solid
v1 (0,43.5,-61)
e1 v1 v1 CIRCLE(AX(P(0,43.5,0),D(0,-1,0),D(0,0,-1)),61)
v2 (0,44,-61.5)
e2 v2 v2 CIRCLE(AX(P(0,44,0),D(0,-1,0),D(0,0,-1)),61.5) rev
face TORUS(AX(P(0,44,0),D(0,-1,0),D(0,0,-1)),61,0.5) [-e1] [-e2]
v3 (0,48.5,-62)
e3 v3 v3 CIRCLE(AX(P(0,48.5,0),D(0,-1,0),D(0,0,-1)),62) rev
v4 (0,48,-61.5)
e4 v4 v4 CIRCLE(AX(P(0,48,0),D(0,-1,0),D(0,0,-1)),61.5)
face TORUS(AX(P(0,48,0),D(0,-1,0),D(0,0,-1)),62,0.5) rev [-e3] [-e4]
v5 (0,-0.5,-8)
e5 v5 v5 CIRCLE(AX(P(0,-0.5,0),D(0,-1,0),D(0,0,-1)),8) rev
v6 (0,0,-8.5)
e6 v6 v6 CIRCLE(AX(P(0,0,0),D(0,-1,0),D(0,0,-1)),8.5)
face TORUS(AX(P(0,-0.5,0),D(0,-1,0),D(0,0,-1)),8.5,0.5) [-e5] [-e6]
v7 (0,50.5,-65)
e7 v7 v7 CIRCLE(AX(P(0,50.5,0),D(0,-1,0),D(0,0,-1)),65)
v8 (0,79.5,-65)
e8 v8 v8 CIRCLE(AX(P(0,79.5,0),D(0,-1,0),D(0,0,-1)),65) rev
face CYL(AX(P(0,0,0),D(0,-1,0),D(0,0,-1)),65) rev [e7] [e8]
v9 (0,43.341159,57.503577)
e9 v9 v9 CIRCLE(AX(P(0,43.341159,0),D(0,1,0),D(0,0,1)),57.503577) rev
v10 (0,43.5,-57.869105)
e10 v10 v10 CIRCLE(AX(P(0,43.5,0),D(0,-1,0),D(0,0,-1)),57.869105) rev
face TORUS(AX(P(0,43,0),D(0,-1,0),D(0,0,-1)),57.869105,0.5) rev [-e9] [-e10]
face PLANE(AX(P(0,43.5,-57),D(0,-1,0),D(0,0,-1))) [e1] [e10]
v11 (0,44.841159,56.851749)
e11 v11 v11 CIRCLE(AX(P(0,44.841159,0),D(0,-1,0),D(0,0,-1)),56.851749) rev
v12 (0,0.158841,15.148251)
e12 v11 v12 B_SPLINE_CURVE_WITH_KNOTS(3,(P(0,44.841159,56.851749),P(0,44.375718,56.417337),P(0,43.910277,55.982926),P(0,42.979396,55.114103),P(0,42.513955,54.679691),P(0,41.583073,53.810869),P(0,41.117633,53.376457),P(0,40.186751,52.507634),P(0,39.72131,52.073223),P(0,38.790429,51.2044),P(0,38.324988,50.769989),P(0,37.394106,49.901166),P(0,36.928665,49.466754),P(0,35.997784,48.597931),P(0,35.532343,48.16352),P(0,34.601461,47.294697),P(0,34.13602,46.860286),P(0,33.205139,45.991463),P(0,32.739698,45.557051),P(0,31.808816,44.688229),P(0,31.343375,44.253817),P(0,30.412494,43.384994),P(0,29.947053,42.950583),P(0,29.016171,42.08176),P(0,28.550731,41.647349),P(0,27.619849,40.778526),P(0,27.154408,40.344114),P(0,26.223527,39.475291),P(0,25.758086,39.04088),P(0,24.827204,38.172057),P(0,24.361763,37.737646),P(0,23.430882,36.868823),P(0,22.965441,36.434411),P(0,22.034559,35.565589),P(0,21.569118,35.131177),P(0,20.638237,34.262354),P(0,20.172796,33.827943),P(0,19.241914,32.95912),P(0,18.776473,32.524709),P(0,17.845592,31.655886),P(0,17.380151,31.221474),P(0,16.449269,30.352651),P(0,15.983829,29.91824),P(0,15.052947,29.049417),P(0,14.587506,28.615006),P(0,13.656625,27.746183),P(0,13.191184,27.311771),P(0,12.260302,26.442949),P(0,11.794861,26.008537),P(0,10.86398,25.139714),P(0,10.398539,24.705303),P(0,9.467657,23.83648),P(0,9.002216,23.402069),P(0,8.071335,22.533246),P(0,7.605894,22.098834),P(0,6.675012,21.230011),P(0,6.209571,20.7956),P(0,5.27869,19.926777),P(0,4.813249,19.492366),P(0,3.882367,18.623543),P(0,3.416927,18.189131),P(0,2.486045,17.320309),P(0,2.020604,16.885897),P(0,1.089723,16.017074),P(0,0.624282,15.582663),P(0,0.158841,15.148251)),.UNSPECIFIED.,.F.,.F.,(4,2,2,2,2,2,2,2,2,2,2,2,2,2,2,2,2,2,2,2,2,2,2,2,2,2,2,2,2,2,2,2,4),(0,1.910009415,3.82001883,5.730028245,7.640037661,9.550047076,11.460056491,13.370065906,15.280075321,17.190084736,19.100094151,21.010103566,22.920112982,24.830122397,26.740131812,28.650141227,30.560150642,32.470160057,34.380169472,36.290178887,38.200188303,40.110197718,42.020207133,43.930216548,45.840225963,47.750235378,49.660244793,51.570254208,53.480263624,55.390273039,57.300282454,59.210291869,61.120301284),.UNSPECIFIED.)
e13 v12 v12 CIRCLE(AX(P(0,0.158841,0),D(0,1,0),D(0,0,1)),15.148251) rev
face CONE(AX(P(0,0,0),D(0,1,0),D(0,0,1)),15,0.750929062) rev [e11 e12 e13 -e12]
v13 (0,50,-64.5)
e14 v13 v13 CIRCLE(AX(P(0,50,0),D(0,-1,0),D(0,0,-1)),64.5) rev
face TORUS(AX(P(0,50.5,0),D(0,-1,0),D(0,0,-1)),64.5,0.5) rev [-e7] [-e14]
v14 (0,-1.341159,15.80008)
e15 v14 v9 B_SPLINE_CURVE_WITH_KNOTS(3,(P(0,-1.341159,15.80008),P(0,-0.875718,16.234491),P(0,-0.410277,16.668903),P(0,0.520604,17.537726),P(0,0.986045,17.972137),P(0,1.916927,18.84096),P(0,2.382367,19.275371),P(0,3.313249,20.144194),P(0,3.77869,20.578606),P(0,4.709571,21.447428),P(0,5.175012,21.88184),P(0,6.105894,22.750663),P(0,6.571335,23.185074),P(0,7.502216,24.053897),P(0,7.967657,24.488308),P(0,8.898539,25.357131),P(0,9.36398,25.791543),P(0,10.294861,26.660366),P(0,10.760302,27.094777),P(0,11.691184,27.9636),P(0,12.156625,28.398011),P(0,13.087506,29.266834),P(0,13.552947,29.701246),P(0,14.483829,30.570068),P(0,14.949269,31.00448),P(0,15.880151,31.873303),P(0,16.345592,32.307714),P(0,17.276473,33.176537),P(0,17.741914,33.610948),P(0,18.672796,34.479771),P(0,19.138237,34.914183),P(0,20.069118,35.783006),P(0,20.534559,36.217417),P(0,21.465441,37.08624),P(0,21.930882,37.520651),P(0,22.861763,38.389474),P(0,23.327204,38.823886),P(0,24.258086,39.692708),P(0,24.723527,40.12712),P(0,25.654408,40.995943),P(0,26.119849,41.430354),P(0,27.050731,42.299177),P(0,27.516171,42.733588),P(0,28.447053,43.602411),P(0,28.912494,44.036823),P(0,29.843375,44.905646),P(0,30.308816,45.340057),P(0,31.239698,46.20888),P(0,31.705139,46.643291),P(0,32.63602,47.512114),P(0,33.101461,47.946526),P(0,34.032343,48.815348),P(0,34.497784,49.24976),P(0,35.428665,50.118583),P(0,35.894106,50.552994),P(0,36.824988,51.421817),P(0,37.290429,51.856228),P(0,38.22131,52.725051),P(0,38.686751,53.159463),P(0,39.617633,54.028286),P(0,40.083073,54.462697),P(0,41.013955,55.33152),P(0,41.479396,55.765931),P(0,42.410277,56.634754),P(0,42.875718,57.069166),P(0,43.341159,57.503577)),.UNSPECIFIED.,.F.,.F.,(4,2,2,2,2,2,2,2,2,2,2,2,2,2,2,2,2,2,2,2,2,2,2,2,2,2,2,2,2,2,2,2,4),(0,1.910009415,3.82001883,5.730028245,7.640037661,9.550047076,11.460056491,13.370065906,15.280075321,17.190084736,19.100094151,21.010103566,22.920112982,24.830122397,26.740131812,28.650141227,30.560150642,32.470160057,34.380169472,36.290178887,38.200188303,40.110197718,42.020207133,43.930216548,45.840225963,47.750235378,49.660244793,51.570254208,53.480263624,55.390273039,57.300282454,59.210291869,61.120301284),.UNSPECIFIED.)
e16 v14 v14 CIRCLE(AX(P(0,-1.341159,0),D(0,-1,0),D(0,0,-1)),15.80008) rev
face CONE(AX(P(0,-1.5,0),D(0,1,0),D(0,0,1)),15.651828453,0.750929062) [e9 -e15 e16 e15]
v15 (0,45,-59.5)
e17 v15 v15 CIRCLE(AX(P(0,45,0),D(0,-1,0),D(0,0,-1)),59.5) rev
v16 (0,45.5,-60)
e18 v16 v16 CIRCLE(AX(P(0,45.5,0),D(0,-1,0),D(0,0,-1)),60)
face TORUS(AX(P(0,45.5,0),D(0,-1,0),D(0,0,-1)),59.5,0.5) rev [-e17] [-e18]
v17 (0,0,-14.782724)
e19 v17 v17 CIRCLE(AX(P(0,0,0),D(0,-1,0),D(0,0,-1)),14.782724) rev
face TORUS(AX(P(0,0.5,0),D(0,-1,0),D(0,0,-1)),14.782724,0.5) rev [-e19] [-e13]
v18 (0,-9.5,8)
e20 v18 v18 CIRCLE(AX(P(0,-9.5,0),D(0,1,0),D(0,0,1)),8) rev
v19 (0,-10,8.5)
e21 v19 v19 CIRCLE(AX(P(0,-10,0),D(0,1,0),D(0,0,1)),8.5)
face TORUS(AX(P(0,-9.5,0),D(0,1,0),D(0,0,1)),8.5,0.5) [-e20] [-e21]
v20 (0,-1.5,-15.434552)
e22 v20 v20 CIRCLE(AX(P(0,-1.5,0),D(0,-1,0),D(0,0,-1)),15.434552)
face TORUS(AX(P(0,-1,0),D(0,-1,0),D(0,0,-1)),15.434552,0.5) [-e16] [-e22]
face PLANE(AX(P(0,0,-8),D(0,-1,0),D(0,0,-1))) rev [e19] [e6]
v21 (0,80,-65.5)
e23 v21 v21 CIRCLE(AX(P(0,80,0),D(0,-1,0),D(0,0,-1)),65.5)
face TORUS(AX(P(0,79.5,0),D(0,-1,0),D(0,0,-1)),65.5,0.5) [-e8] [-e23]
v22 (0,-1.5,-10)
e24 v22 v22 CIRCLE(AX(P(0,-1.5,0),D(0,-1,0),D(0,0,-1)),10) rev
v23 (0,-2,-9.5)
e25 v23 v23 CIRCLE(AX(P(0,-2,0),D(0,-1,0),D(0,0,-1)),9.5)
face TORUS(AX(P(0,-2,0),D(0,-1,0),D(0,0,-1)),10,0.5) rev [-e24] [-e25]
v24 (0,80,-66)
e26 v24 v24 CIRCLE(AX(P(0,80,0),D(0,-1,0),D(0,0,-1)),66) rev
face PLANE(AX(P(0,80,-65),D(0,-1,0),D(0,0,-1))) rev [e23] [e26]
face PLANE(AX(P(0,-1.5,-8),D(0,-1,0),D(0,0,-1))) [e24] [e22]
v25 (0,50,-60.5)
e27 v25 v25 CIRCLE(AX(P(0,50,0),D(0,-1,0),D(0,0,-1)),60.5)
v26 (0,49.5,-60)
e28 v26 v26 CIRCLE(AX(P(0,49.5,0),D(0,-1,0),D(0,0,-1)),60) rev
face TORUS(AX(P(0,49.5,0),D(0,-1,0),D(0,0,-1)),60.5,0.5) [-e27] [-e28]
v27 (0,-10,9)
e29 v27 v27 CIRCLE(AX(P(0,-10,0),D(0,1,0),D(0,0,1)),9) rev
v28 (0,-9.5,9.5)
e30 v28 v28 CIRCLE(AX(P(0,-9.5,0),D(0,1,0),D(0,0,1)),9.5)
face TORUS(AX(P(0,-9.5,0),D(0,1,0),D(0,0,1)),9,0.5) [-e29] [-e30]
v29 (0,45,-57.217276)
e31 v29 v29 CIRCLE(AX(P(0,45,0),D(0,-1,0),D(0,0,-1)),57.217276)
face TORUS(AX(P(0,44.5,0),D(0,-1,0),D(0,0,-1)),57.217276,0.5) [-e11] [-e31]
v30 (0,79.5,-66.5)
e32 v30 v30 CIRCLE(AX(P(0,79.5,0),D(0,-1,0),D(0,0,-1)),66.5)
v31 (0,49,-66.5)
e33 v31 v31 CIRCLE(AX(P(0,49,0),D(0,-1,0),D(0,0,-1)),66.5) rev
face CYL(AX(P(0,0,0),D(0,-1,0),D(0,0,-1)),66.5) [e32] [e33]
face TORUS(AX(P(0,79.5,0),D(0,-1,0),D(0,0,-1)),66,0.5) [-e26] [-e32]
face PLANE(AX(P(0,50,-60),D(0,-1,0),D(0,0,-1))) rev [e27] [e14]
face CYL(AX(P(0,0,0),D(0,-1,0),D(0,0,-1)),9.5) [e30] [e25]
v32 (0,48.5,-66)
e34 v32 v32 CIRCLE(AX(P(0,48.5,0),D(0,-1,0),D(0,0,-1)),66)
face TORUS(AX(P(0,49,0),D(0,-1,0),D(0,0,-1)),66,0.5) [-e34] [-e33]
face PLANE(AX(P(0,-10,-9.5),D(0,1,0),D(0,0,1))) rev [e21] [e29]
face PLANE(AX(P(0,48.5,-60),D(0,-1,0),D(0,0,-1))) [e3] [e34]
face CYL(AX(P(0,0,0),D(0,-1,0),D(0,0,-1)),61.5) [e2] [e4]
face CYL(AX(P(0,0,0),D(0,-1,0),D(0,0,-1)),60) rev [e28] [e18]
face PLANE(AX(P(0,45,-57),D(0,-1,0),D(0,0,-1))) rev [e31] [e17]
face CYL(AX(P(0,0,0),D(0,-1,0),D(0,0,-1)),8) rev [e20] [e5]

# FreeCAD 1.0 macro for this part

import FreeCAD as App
import Part
import Sketcher

V = App.Vector
Q = App.Units.Quantity


def edges_at(feature, points):
    """Names of the edges that pass closest to the given points."""
    edges = feature.Shape.Edges
    near = lambda p: min(range(len(edges)), key=lambda i: edges[i].distToShape(Part.Vertex(*p))[0])
    return sorted({f"Edge{near(p) + 1}" for p in points})


def add_polygon(sketch, points):
    """Adds a closed chain of lines whose ends are joined by coincident constraints."""
    first, n = sketch.GeometryCount, len(points)
    for a, b in zip(points, points[1:] + points[:1]):
        sketch.addGeometry(Part.LineSegment(App.Vector(*a, 0), App.Vector(*b, 0)), False)
    for i in range(n):
        sketch.addConstraint(Sketcher.Constraint("Coincident", first + i, 2, first + (i + 1) % n, 1))

doc = App.newDocument("Part")
body = doc.addObject("PartDesign::Body", "Body")

# Sketch on YZ plane
sketch1 = body.newObject("Sketcher::SketchObject", "Sketch")
sketch1.AttachmentSupport = (doc.getObject("YZ_Plane"), [""])
sketch1.MapMode = "FlatFace"
add_polygon(sketch1, [(80, -65), (50, -65), (50, -60), (45, -60), (45, -57), (0, -15), (0, -8), (-10, -8), (-10, -9.5), (-1.5, -9.5), (-1.5, -15.7), (43.5, -57.7), (43.5, -61.5), (48.5, -61.5), (48.5, -66.5), (80, -66.5)])  # lines 0-15
sketch1.addConstraint([
    Sketcher.Constraint("Horizontal", 0),
    Sketcher.Constraint("Vertical", 1),
    Sketcher.Constraint("Horizontal", 2),
    Sketcher.Constraint("Vertical", 3),
    Sketcher.Constraint("Vertical", 5),
    Sketcher.Constraint("Horizontal", 6),
    Sketcher.Constraint("Vertical", 7),
    Sketcher.Constraint("Horizontal", 8),
    Sketcher.Constraint("Vertical", 9),
    Sketcher.Constraint("Vertical", 11),
    Sketcher.Constraint("Horizontal", 12),
    Sketcher.Constraint("Vertical", 13),
    Sketcher.Constraint("Horizontal", 14),
    Sketcher.Constraint("Vertical", 15),
    Sketcher.Constraint("PointOnObject", 4, 2, -2),
    Sketcher.Constraint("Parallel", 4, 10),
    Sketcher.Constraint("Equal", 2, 12),
    Sketcher.Constraint("Equal", 12, 1),
    Sketcher.Constraint("Equal", 1, 13),
    Sketcher.Constraint("Equal", 7, 15),
    Sketcher.Constraint("Equal", 4, 10),
    Sketcher.Constraint("DistanceX", 0, 2, 0, 1, Q("30 mm")),
    Sketcher.Constraint("DistanceX", 2, 2, 2, 1, Q("5 mm")),
    Sketcher.Constraint("DistanceX", 6, 2, 6, 1, Q("10 mm")),
    Sketcher.Constraint("DistanceY", 3, 1, 3, 2, Q("3 mm")),
    Sketcher.Constraint("DistanceY", 5, 1, 5, 2, Q("7 mm")),
    Sketcher.Constraint("DistanceX", 8, 1, 8, 2, Q("8.5 mm")),
    Sketcher.Constraint("DistanceY", 7, 2, 7, 1, Q("1.5 mm")),
    Sketcher.Constraint("DistanceX", -1, 1, 0, 2, Q("50 mm")),
    Sketcher.Constraint("DistanceY", 0, 2, -1, 1, Q("65 mm")),
    Sketcher.Constraint("DistanceY", 4, 2, -1, 1, Q("15 mm")),
    Sketcher.Constraint("DistanceY", 9, 2, 9, 1, Q("6.151828 mm")),
])
revolution = body.newObject("PartDesign::Revolution", "Revolution")
revolution.Profile = sketch1
revolution.ReferenceAxis = (sketch1, ["H_Axis"])
revolution.Angle = 360
doc.recompute()

fillet = body.newObject("PartDesign::Fillet", "Fillet")
fillet.Base = (revolution, edges_at(revolution, [
    (0, 80, 66.5),
    (0, 80, 65),
    (0, 50, 65),
    (0, 50, 60),
    (0, 45, 60),
    (0, 45, 57),
    (0, 0, 15),
    (0, 0, 8),
    (0, -10, 8),
    (0, -10, 9.5),
    (0, -1.5, 9.5),
    (0, -1.5, 15.652),
    (0, 43.5, 57.652),
    (0, 43.5, 61.5),
    (0, 48.5, 61.5),
    (0, 48.5, 66.5),
]))
fillet.Radius = 0.5

doc.recompute()
